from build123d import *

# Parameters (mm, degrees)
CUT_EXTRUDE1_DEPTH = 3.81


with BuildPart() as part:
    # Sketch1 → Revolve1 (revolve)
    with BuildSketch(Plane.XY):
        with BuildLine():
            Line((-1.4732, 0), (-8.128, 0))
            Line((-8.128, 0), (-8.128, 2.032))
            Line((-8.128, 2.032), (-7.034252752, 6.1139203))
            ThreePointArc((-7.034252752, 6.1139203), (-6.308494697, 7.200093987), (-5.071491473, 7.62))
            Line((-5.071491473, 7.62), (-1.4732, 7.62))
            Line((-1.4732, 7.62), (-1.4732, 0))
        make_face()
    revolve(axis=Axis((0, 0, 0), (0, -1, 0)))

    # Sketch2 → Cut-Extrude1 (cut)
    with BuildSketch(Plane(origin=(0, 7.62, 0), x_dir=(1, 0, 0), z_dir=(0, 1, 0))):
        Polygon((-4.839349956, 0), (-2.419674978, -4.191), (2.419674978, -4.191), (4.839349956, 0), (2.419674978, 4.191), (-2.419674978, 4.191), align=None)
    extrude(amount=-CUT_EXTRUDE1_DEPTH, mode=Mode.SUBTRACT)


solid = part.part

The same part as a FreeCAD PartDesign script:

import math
import FreeCAD as App
import Part
import Sketcher
Q = App.Units.Quantity

doc = App.newDocument("Part")
body = doc.addObject("PartDesign::Body", "Body")

# Sketch on XY plane
sketch1 = body.newObject("Sketcher::SketchObject", "Sketch")
sketch1.AttachmentSupport = (doc.getObject("XY_Plane"), [""])
sketch1.MapMode = "FlatFace"
sketch1.addGeometry([
    Part.LineSegment(App.Vector(-8.1, 0, 0), App.Vector(-1.5, 0, 0)),  # 0
    Part.LineSegment(App.Vector(-1.5, 0, 0), App.Vector(-1.5, 7.6, 0)),  # 1
    Part.LineSegment(App.Vector(-1.5, 7.6, 0), App.Vector(-5.1, 7.6, 0)),  # 2
    Part.ArcOfCircle(Part.Circle(App.Vector(-5.1, 5.6, 0), App.Vector(0, 0, 1), 2), math.radians(90), math.radians(165)),  # 3
    Part.LineSegment(App.Vector(-7, 6.1, 0), App.Vector(-8.1, 2, 0)),  # 4
    Part.LineSegment(App.Vector(-8.1, 2, 0), App.Vector(-8.1, 0, 0)),  # 5
], False)
sketch1.addConstraint([
    Sketcher.Constraint("Coincident", 0, 2, 1, 1),
    Sketcher.Constraint("Coincident", 1, 2, 2, 1),
    Sketcher.Constraint("Tangent", 2, 2, 3, 1),
    Sketcher.Constraint("Tangent", 3, 2, 4, 1),
    Sketcher.Constraint("Coincident", 4, 2, 5, 1),
    Sketcher.Constraint("Coincident", 5, 2, 0, 1),
    Sketcher.Constraint("Horizontal", 0),
    Sketcher.Constraint("Vertical", 1),
    Sketcher.Constraint("Horizontal", 2),
    Sketcher.Constraint("Vertical", 5),
    Sketcher.Constraint("PointOnObject", 0, 2, -1),
    Sketcher.Constraint("Radius", 3, Q("0.08 in")),
    Sketcher.Constraint("DistanceY", 1, 1, 1, 2, Q("0.3 in")),
    Sketcher.Constraint("Angle", 4, Q("-105 deg")),
    Sketcher.Constraint("DistanceY", 5, 2, 5, 1, Q("0.08 in")),
    Sketcher.Constraint("DistanceX", 0, 1, 0, 2, Q("0.262 in")),
    Sketcher.Constraint("DistanceX", 4, 2, -1, 1, Q("0.32 in")),
])
revolution = body.newObject("PartDesign::Revolution", "Revolution")
revolution.Profile = sketch1
revolution.ReferenceAxis = (sketch1, ["V_Axis"])
revolution.Angle = 360

# Sketch on XZ plane
sketch2 = body.newObject("Sketcher::SketchObject", "Sketch001")
sketch2.AttachmentSupport = (doc.getObject("XZ_Plane"), [""])
sketch2.MapMode = "FlatFace"
sketch2.AttachmentOffset = App.Placement(App.Vector(0, 0, -0.3 * 25.4), App.Rotation())
sketch2.addGeometry([
    Part.LineSegment(App.Vector(-4.8, 0, 0), App.Vector(-2.4, 4.2, 0)),  # 0
    Part.LineSegment(App.Vector(-2.4, 4.2, 0), App.Vector(2.4, 4.2, 0)),  # 1
    Part.LineSegment(App.Vector(2.4, 4.2, 0), App.Vector(4.8, 0, 0)),  # 2
    Part.LineSegment(App.Vector(4.8, 0, 0), App.Vector(2.4, -4.2, 0)),  # 3
    Part.LineSegment(App.Vector(2.4, -4.2, 0), App.Vector(-2.4, -4.2, 0)),  # 4
    Part.LineSegment(App.Vector(-2.4, -4.2, 0), App.Vector(-4.8, 0, 0)),  # 5
], False)
sketch2.addConstraint([
    Sketcher.Constraint("Coincident", 0, 2, 1, 1),
    Sketcher.Constraint("Coincident", 1, 2, 2, 1),
    Sketcher.Constraint("Coincident", 2, 2, 3, 1),
    Sketcher.Constraint("Coincident", 3, 2, 4, 1),
    Sketcher.Constraint("Coincident", 4, 2, 5, 1),
    Sketcher.Constraint("Coincident", 5, 2, 0, 1),
    Sketcher.Constraint("Horizontal", 1),
    Sketcher.Constraint("Horizontal", 4),
    Sketcher.Constraint("Symmetric", 0, 2, 3, 2, -1, 1),
    Sketcher.Constraint("Symmetric", 2, 2, 5, 2, -1, 1),
    Sketcher.Constraint("PointOnObject", 2, 2, -1),
    Sketcher.Constraint("Parallel", 2, 5),
    Sketcher.Constraint("Vertical", 1, 2, 3, 2),
    Sketcher.Constraint("Angle", 0, Q("60 deg")),
    Sketcher.Constraint("DistanceY", 3, 2, 1, 2, Q("0.33 in")),
    Sketcher.Constraint("DistanceX", 1, 1, 1, 2, 4.83935),
])
pocket1 = body.newObject("PartDesign::Pocket", "Pocket")
pocket1.Profile = sketch2
pocket1.Length = Q("0.15 in")
pocket1.Reversed = True

doc.recompute()
